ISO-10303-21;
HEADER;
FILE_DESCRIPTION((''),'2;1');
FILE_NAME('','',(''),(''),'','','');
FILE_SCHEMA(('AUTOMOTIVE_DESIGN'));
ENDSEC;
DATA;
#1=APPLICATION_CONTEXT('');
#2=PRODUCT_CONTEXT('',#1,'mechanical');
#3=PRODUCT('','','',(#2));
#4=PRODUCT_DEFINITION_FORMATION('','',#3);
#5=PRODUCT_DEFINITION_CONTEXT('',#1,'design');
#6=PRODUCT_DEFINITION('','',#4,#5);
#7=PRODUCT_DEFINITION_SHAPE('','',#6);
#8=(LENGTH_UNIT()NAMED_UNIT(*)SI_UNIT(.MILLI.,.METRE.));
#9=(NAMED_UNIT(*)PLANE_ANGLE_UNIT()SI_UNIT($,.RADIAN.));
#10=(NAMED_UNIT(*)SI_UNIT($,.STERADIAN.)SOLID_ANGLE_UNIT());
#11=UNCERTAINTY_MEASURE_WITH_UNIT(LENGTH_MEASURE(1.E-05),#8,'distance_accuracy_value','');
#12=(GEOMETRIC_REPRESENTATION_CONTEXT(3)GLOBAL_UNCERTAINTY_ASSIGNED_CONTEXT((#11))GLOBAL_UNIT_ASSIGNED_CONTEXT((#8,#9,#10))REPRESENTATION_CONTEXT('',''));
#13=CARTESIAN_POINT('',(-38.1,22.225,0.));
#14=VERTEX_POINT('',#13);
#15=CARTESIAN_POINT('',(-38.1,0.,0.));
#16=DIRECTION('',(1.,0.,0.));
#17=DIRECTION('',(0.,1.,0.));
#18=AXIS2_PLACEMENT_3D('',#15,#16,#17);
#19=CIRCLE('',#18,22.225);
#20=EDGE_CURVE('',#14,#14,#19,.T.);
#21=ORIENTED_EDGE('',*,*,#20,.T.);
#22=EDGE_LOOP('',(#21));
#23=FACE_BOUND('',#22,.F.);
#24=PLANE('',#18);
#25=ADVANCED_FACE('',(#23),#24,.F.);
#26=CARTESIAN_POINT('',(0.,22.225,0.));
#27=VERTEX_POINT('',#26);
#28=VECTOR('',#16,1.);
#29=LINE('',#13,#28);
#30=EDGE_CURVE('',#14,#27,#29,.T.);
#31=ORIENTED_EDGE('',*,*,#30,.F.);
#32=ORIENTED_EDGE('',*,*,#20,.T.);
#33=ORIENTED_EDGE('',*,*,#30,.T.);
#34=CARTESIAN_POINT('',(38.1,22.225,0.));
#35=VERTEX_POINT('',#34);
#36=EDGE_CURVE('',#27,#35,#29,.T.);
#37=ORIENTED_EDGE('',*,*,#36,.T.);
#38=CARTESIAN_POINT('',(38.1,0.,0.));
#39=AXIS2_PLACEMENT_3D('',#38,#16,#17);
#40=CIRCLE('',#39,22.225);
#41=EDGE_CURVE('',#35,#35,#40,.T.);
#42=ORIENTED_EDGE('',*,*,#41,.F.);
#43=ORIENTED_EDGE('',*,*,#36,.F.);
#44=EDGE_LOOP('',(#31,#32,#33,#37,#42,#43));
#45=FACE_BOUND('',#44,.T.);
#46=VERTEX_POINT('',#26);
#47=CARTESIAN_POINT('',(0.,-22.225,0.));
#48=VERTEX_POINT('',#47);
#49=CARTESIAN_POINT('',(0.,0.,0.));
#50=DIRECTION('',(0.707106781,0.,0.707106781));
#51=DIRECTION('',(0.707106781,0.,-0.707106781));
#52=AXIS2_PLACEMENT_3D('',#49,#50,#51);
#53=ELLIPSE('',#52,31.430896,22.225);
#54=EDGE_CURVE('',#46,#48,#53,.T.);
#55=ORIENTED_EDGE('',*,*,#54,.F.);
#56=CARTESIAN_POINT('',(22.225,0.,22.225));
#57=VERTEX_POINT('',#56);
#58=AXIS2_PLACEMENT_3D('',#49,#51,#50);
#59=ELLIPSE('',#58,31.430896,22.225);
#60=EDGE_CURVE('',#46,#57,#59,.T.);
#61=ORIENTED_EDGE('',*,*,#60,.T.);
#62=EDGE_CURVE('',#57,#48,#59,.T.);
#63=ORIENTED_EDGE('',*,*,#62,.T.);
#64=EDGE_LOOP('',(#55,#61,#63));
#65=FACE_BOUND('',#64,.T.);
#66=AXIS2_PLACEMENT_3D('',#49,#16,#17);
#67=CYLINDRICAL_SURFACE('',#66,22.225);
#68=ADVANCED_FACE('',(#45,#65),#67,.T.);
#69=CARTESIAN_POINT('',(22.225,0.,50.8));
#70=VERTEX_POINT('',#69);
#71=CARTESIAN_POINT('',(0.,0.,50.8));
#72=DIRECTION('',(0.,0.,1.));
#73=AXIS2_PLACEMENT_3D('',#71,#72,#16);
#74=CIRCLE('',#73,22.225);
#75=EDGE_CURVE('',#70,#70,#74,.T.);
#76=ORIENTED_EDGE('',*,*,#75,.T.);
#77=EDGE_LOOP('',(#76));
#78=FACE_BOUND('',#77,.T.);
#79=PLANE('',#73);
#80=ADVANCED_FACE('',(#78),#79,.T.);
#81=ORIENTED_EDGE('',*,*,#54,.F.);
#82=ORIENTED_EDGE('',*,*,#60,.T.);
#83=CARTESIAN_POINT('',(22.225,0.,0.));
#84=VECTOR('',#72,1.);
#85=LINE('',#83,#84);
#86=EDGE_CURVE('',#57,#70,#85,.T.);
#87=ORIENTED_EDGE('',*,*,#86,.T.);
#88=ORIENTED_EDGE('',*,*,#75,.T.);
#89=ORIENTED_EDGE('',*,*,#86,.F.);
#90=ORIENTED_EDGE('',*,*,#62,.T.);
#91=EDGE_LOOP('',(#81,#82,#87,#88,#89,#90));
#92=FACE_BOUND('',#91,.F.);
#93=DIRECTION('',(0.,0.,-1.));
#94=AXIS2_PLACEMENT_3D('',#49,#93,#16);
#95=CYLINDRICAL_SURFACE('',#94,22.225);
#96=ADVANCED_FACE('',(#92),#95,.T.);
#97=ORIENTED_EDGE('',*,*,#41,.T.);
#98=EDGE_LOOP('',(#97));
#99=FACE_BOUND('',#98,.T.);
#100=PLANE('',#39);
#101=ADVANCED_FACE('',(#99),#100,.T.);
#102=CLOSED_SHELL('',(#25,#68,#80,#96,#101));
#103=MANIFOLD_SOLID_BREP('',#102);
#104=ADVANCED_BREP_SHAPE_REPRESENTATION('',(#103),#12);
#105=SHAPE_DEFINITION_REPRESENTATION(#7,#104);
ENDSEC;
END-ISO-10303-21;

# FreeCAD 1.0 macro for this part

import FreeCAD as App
import Part
import Sketcher
Q = App.Units.Quantity

doc = App.newDocument("Part")
body = doc.addObject("PartDesign::Body", "Body")

# Sketch on YZ plane
sketch1 = body.newObject("Sketcher::SketchObject", "Sketch")
sketch1.AttachmentSupport = (doc.getObject("YZ_Plane"), [""])
sketch1.MapMode = "FlatFace"
sketch1.addGeometry(Part.Circle(App.Vector(0, 0, 0), App.Vector(0, 0, 1), 22.225), False)
sketch1.addConstraint([
    Sketcher.Constraint("Coincident", 0, 3, -1, 1),
    Sketcher.Constraint("Diameter", 0, Q("1.75 in")),
])
pad1 = body.newObject("PartDesign::Pad", "Pad")
pad1.Profile = sketch1
pad1.Length = Q("3 in")
pad1.Midplane = True

# Sketch on XY plane
sketch2 = body.newObject("Sketcher::SketchObject", "Sketch001")
sketch2.AttachmentSupport = (doc.getObject("XY_Plane"), [""])
sketch2.MapMode = "FlatFace"
sketch2.addGeometry(Part.Circle(App.Vector(0, 0, 0), App.Vector(0, 0, 1), 22.225), False)
sketch2.addConstraint([
    Sketcher.Constraint("Coincident", 0, 3, -1, 1),
    Sketcher.Constraint("Diameter", 0, Q("1.75 in")),
])
pad2 = body.newObject("PartDesign::Pad", "Pad001")
pad2.Profile = sketch2
pad2.Length = Q("2 in")

doc.recompute()
